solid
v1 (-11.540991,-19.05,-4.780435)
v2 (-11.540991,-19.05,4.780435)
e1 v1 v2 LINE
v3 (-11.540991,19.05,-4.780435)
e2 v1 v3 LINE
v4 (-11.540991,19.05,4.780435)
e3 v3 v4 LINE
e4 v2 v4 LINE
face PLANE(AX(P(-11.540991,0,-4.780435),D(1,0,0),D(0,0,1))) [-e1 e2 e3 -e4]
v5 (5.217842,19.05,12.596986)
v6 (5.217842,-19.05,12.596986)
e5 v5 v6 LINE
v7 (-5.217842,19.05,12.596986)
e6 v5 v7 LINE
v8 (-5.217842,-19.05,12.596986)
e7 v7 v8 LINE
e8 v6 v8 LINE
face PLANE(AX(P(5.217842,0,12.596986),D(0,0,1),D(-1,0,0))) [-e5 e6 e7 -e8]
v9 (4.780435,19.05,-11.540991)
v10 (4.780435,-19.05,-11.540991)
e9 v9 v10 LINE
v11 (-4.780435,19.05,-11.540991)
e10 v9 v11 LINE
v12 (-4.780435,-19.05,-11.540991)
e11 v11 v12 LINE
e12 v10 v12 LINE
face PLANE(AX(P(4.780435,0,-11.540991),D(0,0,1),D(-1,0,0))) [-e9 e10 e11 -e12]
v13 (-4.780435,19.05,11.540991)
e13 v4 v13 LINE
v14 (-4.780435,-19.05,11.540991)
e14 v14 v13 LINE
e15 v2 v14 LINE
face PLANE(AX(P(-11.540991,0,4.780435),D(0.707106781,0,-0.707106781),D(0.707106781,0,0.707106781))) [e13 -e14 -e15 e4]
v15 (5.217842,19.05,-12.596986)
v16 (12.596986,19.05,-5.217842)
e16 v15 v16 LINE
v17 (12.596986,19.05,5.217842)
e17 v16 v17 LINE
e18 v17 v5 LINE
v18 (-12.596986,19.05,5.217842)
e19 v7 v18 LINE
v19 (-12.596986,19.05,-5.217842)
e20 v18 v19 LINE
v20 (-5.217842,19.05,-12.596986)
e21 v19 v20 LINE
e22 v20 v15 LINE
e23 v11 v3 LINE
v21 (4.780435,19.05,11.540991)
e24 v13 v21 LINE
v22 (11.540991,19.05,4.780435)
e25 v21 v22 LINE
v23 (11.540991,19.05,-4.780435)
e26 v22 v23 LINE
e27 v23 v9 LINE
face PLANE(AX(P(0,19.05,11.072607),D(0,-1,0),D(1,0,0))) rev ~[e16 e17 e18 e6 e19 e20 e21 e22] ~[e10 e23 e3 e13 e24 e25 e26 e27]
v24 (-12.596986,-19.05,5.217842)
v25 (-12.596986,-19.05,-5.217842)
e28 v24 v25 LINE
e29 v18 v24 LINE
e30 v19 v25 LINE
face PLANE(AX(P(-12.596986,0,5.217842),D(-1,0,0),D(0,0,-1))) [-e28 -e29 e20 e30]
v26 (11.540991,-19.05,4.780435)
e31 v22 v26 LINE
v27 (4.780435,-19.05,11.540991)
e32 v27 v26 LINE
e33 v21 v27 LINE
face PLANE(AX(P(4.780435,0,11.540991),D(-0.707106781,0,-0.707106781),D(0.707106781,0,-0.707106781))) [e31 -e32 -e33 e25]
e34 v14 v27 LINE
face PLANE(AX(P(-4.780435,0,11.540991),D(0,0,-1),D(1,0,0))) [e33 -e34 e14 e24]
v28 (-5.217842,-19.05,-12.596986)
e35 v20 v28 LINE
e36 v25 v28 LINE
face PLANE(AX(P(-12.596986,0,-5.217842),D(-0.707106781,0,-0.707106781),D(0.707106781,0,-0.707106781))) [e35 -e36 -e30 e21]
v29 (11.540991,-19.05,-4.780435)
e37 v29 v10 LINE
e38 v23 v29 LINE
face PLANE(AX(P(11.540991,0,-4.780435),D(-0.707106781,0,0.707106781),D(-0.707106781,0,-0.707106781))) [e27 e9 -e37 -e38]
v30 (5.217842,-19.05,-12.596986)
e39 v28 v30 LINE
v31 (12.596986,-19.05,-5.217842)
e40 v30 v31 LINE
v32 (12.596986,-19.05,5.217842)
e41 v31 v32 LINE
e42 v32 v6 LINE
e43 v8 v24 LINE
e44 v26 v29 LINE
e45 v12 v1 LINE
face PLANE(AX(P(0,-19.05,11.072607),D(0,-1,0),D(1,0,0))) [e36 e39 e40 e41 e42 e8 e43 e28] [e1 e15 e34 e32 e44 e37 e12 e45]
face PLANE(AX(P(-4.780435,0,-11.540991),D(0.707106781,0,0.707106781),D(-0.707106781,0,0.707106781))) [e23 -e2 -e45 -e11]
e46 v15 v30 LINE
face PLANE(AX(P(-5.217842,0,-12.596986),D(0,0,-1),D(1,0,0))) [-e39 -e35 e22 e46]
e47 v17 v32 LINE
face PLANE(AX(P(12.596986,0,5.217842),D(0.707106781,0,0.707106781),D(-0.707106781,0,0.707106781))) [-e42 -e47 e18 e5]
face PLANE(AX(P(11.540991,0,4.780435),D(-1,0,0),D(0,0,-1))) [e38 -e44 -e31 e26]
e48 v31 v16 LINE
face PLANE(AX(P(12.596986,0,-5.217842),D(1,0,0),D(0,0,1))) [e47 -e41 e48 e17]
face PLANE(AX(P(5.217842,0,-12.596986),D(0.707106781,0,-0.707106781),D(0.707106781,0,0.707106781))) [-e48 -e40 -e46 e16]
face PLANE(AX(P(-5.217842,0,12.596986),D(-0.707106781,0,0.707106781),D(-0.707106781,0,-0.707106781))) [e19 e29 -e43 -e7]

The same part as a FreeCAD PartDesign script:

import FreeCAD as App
import Part
import Sketcher
Q = App.Units.Quantity

doc = App.newDocument("Part")
body = doc.addObject("PartDesign::Body", "Body")

sketch1 = body.newObject("Sketcher::SketchObject", "Sketch")
sketch1.AttachmentSupport = (doc.getObject("XZ_Plane"), [""])
sketch1.MapMode = "FlatFace"
sketch1.addGeometry([
    Part.LineSegment(App.Vector(12.596986, -5.217842, 0), App.Vector(12.596986, 5.217842, 0)),
    Part.LineSegment(App.Vector(12.596986, 5.217842, 0), App.Vector(5.217842, 12.596986, 0)),
    Part.LineSegment(App.Vector(5.217842, 12.596986, 0), App.Vector(-5.217842, 12.596986, 0)),
    Part.LineSegment(App.Vector(-5.217842, 12.596986, 0), App.Vector(-12.596986, 5.217842, 0)),
    Part.LineSegment(App.Vector(-12.596986, 5.217842, 0), App.Vector(-12.596986, -5.217842, 0)),
    Part.LineSegment(App.Vector(-12.596986, -5.217842, 0), App.Vector(-5.217842, -12.596986, 0)),
    Part.LineSegment(App.Vector(-5.217842, -12.596986, 0), App.Vector(5.217842, -12.596986, 0)),
    Part.LineSegment(App.Vector(5.217842, -12.596986, 0), App.Vector(12.596986, -5.217842, 0)),
    Part.LineSegment(App.Vector(-4.780435, 11.540991, 0), App.Vector(4.780435, 11.540991, 0)),
    Part.LineSegment(App.Vector(4.780435, 11.540991, 0), App.Vector(11.540991, 4.780435, 0)),
    Part.LineSegment(App.Vector(11.540991, 4.780435, 0), App.Vector(11.540991, -4.780435, 0)),
    Part.LineSegment(App.Vector(11.540991, -4.780435, 0), App.Vector(4.780435, -11.540991, 0)),
    Part.LineSegment(App.Vector(4.780435, -11.540991, 0), App.Vector(-4.780435, -11.540991, 0)),
    Part.LineSegment(App.Vector(-4.780435, -11.540991, 0), App.Vector(-11.540991, -4.780435, 0)),
    Part.LineSegment(App.Vector(-11.540991, -4.780435, 0), App.Vector(-11.540991, 4.780435, 0)),
    Part.LineSegment(App.Vector(-11.540991, 4.780435, 0), App.Vector(-4.780435, 11.540991, 0)),
], False)
sketch1.addConstraint([
    Sketcher.Constraint("Coincident", 0, 2, 1, 1),
    Sketcher.Constraint("Coincident", 1, 2, 2, 1),
    Sketcher.Constraint("Coincident", 2, 2, 3, 1),
    Sketcher.Constraint("Coincident", 3, 2, 4, 1),
    Sketcher.Constraint("Coincident", 4, 2, 5, 1),
    Sketcher.Constraint("Coincident", 5, 2, 6, 1),
    Sketcher.Constraint("Coincident", 6, 2, 7, 1),
    Sketcher.Constraint("Coincident", 7, 2, 0, 1),
    Sketcher.Constraint("Coincident", 8, 2, 9, 1),
    Sketcher.Constraint("Coincident", 9, 2, 10, 1),
    Sketcher.Constraint("Coincident", 10, 2, 11, 1),
    Sketcher.Constraint("Coincident", 11, 2, 12, 1),
    Sketcher.Constraint("Coincident", 12, 2, 13, 1),
    Sketcher.Constraint("Coincident", 13, 2, 14, 1),
    Sketcher.Constraint("Coincident", 14, 2, 15, 1),
    Sketcher.Constraint("Coincident", 15, 2, 8, 1),
    Sketcher.Constraint("Vertical", 0),
    Sketcher.Constraint("Horizontal", 2),
    Sketcher.Constraint("Vertical", 4),
    Sketcher.Constraint("Horizontal", 6),
    Sketcher.Constraint("Horizontal", 8),
    Sketcher.Constraint("Vertical", 10),
    Sketcher.Constraint("Horizontal", 12),
    Sketcher.Constraint("Vertical", 14),
    Sketcher.Constraint("Symmetric", 0, 2, 4, 2, -1, 1),
    Sketcher.Constraint("Symmetric", 1, 2, 5, 2, -1, 1),
    Sketcher.Constraint("Symmetric", 8, 2, 12, 2, -1, 1),
    Sketcher.Constraint("Symmetric", 9, 2, 13, 2, -1, 1),
    Sketcher.Constraint("Perpendicular", 1, 3),
    Sketcher.Constraint("Perpendicular", 5, 7),
    Sketcher.Constraint("Perpendicular", 7, 9),
    Sketcher.Constraint("Perpendicular", 9, 11),
    Sketcher.Constraint("Perpendicular", 13, 15),
    Sketcher.Constraint("Horizontal", 0, 2, 3, 2),
    Sketcher.Constraint("Horizontal", 4, 2, 7, 2),
    Sketcher.Constraint("Horizontal", 10, 2, 13, 2),
    Sketcher.Constraint("Horizontal", 9, 2, 14, 2),
    Sketcher.Constraint("Vertical", 2, 2, 5, 2),
    Sketcher.Constraint("Equal", 6, 0),
    Sketcher.Constraint("Equal", 12, 10),
    Sketcher.Constraint("DistanceX", 8, 1, 8, 2, 9.56087),
    Sketcher.Constraint("Distance", 9, 9.56087),
    Sketcher.Constraint("DistanceX", 2, 2, 2, 1, 10.435684),
    Sketcher.Constraint("DistanceX", 3, 2, 0, 2, 25.193972),
])
pad1 = body.newObject("PartDesign::Pad", "Pad")
pad1.Profile = sketch1
pad1.Length = Q("1.5 in")
pad1.Midplane = True

doc.recompute()
